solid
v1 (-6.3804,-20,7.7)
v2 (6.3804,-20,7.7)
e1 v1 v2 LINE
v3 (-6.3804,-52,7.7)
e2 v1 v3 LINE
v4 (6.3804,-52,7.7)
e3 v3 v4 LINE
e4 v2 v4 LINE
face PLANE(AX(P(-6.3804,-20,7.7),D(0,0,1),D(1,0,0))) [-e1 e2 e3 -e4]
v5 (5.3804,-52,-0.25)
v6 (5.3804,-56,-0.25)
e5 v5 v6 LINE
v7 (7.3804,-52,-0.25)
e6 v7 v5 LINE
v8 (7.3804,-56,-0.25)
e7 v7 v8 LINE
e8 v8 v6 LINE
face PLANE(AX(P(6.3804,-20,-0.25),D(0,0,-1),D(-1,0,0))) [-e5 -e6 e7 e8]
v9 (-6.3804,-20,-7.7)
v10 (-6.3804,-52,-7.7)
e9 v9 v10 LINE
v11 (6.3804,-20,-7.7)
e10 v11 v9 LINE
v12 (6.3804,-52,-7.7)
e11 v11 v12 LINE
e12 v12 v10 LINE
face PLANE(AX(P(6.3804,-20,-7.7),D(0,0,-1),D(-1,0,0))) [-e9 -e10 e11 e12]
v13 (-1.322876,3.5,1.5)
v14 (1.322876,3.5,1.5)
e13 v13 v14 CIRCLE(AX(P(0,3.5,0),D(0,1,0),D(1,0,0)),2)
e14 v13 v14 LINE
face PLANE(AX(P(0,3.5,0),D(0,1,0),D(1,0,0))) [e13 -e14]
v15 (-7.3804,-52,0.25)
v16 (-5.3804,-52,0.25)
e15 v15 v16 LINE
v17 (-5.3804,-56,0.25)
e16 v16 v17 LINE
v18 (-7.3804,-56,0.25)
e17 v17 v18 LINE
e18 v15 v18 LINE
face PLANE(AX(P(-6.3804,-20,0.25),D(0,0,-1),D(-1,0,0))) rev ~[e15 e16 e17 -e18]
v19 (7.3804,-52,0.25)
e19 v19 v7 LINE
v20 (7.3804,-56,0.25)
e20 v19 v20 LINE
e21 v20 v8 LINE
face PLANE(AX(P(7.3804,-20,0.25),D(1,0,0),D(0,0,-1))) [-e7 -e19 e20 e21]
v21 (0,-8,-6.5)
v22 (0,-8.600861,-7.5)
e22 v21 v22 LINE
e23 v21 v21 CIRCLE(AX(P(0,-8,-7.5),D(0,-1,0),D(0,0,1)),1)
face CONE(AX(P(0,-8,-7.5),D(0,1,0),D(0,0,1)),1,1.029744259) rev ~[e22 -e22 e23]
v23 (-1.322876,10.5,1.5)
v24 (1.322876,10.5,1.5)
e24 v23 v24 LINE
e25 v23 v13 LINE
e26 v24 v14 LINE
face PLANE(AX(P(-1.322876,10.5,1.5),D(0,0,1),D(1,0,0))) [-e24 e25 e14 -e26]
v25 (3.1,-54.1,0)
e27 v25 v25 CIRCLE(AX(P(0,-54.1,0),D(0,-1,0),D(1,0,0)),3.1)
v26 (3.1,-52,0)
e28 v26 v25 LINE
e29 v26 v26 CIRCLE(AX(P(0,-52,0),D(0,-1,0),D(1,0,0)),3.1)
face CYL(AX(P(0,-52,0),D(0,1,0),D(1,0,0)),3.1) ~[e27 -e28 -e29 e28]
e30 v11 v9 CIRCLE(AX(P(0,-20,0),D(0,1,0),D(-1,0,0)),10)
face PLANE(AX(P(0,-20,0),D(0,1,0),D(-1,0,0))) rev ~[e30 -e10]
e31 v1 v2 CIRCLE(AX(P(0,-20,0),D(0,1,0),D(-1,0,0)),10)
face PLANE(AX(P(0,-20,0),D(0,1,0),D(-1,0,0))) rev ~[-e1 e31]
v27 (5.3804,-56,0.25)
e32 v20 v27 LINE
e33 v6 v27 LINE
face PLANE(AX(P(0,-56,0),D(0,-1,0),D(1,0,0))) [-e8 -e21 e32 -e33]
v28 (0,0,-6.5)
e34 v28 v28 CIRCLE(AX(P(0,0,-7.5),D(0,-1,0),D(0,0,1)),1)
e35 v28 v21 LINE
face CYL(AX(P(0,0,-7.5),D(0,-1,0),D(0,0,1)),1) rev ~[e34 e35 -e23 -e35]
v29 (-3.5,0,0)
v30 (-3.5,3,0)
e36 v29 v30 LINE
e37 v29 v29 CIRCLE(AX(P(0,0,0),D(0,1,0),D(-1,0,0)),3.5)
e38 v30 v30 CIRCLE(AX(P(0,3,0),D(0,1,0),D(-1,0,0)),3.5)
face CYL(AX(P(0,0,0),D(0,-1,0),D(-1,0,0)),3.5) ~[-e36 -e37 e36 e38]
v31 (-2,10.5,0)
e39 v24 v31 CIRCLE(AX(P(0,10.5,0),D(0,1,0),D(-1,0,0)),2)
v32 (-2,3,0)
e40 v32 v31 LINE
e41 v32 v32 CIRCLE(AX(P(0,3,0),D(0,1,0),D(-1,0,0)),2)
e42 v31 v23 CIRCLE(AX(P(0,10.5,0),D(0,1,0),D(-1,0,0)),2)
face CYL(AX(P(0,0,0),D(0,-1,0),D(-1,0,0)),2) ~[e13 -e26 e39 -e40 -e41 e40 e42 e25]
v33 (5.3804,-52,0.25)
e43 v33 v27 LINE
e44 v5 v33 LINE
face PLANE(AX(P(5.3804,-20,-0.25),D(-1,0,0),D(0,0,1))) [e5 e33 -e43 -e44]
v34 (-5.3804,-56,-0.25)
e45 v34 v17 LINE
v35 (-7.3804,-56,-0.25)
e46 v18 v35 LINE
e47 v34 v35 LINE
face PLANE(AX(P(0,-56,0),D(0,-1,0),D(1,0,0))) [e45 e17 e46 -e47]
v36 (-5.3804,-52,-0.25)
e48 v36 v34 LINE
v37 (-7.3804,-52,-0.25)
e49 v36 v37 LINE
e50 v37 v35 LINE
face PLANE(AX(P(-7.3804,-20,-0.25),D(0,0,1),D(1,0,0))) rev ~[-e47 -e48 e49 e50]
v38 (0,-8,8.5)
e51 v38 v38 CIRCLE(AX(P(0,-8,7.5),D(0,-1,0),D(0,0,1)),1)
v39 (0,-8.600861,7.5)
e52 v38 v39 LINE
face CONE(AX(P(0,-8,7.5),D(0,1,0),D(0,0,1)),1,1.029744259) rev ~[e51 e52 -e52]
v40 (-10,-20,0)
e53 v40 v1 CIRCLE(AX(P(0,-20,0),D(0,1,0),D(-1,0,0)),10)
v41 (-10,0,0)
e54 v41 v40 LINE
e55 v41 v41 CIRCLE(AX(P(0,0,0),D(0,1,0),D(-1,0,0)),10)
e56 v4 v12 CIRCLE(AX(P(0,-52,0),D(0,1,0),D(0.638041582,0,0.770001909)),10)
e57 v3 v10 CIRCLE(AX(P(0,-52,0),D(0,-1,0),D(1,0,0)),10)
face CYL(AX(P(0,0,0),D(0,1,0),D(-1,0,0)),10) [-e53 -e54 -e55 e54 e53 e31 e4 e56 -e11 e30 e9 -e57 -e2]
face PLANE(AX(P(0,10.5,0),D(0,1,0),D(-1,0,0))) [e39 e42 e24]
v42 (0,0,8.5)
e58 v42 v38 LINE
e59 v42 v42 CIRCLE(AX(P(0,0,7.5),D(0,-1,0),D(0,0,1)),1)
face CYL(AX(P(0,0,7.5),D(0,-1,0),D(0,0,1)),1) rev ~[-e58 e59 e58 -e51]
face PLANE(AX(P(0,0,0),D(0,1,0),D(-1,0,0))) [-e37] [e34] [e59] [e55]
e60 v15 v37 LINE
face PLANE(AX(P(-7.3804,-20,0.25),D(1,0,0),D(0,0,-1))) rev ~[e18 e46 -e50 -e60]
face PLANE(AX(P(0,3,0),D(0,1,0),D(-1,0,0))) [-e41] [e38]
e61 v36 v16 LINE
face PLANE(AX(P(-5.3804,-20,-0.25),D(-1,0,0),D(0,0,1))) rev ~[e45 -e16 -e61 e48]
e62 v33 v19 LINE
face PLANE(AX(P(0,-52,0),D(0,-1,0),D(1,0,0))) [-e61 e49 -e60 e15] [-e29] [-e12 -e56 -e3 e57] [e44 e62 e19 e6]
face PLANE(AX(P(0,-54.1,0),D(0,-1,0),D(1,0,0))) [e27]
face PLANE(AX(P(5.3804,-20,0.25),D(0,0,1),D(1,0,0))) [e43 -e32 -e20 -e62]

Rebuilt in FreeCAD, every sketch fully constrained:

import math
import FreeCAD as App
import Part
import Sketcher
from FreeCAD import Vector


def add_polygon(sketch, points):
    """Adds a closed chain of lines whose ends are joined by coincident constraints."""
    first, n = sketch.GeometryCount, len(points)
    for a, b in zip(points, points[1:] + points[:1]):
        sketch.addGeometry(Part.LineSegment(App.Vector(*a, 0), App.Vector(*b, 0)), False)
    for i in range(n):
        sketch.addConstraint(Sketcher.Constraint("Coincident", first + i, 2, first + (i + 1) % n, 1))

doc = App.newDocument("Part")
params = doc.addObject("Spreadsheet::Sheet", "Params")
for row, (alias, value) in enumerate([
    ("sketch1_diameter", "20 mm"),
    ("pad1_length", "20 mm"),
    ("sketch2_diameter", "7 mm"),
    ("sketch2_diameter2", "4 mm"),
    ("pad2_length", "3 mm"),
    ("sketch3_diameter", "4 mm"),
    ("pad3_length", "10.5 mm"),
    ("sketch4_radius", "2 mm"),
    ("pocket1_length", "7 mm"),
    ("sketch5_width", "2 mm"),
    ("sketch5_height", "0.5 mm"),
    ("pad4_length", "36 mm"),
    ("sketch6_width", "2 mm"),
    ("sketch6_height", "0.5 mm"),
    ("sketch6_radius", "10 mm"),
    ("pad5_length", "32 mm"),
    ("sketch7_diameter", "6.2 mm"),
    ("pad6_length", "2.1 mm"),
    ("sketch8_diameter", "2 mm"),
    ("hole_diameter", "2 mm"),
    ("hole_depth", "8 mm"),
    ("sketch9_diameter", "2 mm"),
    ("hole2_diameter", "2 mm"),
    ("hole2_depth", "8 mm"),
], start=1):
    params.set(f"A{row}", alias)
    params.set(f"B{row}", "=" + value)
    params.setAlias(f"B{row}", alias)

body = doc.addObject("PartDesign::Body", "Body")

# Sketch on XZ plane
sketch1 = body.newObject("Sketcher::SketchObject", "Sketch")
sketch1.AttachmentSupport = (doc.getObject("XZ_Plane"), [""])
sketch1.MapMode = "FlatFace"
sketch1.addGeometry(Part.Circle(Vector(0, 0, 0), Vector(0, 0, 1), 10), False)
sketch1.addConstraint([
    Sketcher.Constraint("Coincident", 0, 3, -1, 1),
    Sketcher.Constraint("Diameter", 0, 20.0),
])
sketch1.setExpression("Constraints[1]", "Params.sketch1_diameter")
pad1 = body.newObject("PartDesign::Pad", "Pad")
pad1.Profile = sketch1
pad1.setExpression("Length", "Params.pad1_length")

# Sketch on XZ plane
sketch2 = body.newObject("Sketcher::SketchObject", "Sketch001")
sketch2.AttachmentSupport = (doc.getObject("XZ_Plane"), [""])
sketch2.MapMode = "FlatFace"
sketch2.addGeometry([
    Part.Circle(Vector(0, 0, 0), Vector(0, 0, 1), 3.5),
    Part.Circle(Vector(0, 0, 0), Vector(0, 0, 1), 2),
], False)
sketch2.addConstraint([
    Sketcher.Constraint("Coincident", 0, 3, -1, 1),
    Sketcher.Constraint("Coincident", 1, 3, -1, 1),
    Sketcher.Constraint("Diameter", 0, 7.0),
    Sketcher.Constraint("Diameter", 1, 4.0),
])
sketch2.setExpression("Constraints[2]", "Params.sketch2_diameter")
sketch2.setExpression("Constraints[3]", "Params.sketch2_diameter2")
pad2 = body.newObject("PartDesign::Pad", "Pad001")
pad2.Profile = sketch2
pad2.setExpression("Length", "Params.pad2_length")
pad2.Reversed = True

# Sketch on XZ plane
sketch3 = body.newObject("Sketcher::SketchObject", "Sketch002")
sketch3.AttachmentSupport = (doc.getObject("XZ_Plane"), [""])
sketch3.MapMode = "FlatFace"
sketch3.addGeometry(Part.Circle(Vector(0, 0, 0), Vector(0, 0, 1), 2), False)
sketch3.addConstraint([
    Sketcher.Constraint("Coincident", 0, 3, -1, 1),
    Sketcher.Constraint("Diameter", 0, 4.0),
])
sketch3.setExpression("Constraints[1]", "Params.sketch3_diameter")
pad3 = body.newObject("PartDesign::Pad", "Pad002")
pad3.Profile = sketch3
pad3.setExpression("Length", "Params.pad3_length")
pad3.Reversed = True

# Sketch on XZ plane
sketch4 = body.newObject("Sketcher::SketchObject", "Sketch003")
sketch4.AttachmentSupport = (doc.getObject("XZ_Plane"), [""])
sketch4.MapMode = "FlatFace"
sketch4.AttachmentOffset = App.Placement(Vector(0, 0, -10.5), App.Rotation())
sketch4.addGeometry([
    Part.LineSegment(Vector(1.3, 1.5, 0), Vector(-1.3, 1.5, 0)),
    Part.ArcOfCircle(Part.Circle(Vector(0, 0, 0), Vector(0, 0, 1), 2), math.radians(49), math.radians(131)),
], False)
sketch4.addConstraint([
    Sketcher.Constraint("Coincident", 0, 1, 1, 1),
    Sketcher.Constraint("Coincident", 1, 2, 0, 2),
    Sketcher.Constraint("Horizontal", 0),
    Sketcher.Constraint("Coincident", 1, 3, -1, 1),
    Sketcher.Constraint("Radius", 1, 2.0),
    Sketcher.Constraint("DistanceY", -1, 1, 0, 1, 1.5),
])
sketch4.setExpression("Constraints[4]", "Params.sketch4_radius")
pocket1 = body.newObject("PartDesign::Pocket", "Pocket")
pocket1.Profile = sketch4
pocket1.setExpression("Length", "Params.pocket1_length")
pocket1.Reversed = True

# Sketch on XZ plane
sketch5 = body.newObject("Sketcher::SketchObject", "Sketch004")
sketch5.AttachmentSupport = (doc.getObject("XZ_Plane"), [""])
sketch5.MapMode = "FlatFace"
sketch5.AttachmentOffset = App.Placement(Vector(0, 0, 20), App.Rotation())
add_polygon(sketch5, [(5.4, -0.2), (7.4, -0.2), (7.4, 0.2), (5.4, 0.2)])  # lines 0-3
add_polygon(sketch5, [(-7.4, -0.2), (-5.4, -0.2), (-5.4, 0.2), (-7.4, 0.2)])  # lines 4-7
sketch5.addConstraint([
    Sketcher.Constraint("Horizontal", 0),
    Sketcher.Constraint("Vertical", 1),
    Sketcher.Constraint("Horizontal", 2),
    Sketcher.Constraint("Vertical", 3),
    Sketcher.Constraint("Horizontal", 4),
    Sketcher.Constraint("Vertical", 5),
    Sketcher.Constraint("Horizontal", 6),
    Sketcher.Constraint("Vertical", 7),
    Sketcher.Constraint("Symmetric", 2, 2, 4, 2, -1, 1),
    Sketcher.Constraint("Symmetric", 0, 2, 6, 2, -1, 1),
    Sketcher.Constraint("Horizontal", 3, 2, 4, 2),
    Sketcher.Constraint("DistanceX", 0, 1, 0, 2, 2.0),
    Sketcher.Constraint("DistanceY", 1, 1, 1, 2, 0.5),
    Sketcher.Constraint("DistanceX", -1, 1, 0, 2, 7.3804),
])
sketch5.setExpression("Constraints[19]", "Params.sketch5_width")
sketch5.setExpression("Constraints[20]", "Params.sketch5_height")
pad4 = body.newObject("PartDesign::Pad", "Pad003")
pad4.Profile = sketch5
pad4.setExpression("Length", "Params.pad4_length")

# Sketch on XZ plane
sketch6 = body.newObject("Sketcher::SketchObject", "Sketch005")
sketch6.AttachmentSupport = (doc.getObject("XZ_Plane"), [""])
sketch6.MapMode = "FlatFace"
sketch6.AttachmentOffset = App.Placement(Vector(0, 0, 20), App.Rotation())
sketch6.addGeometry(Part.LineSegment(Vector(-6.4, -7.7, 0), Vector(6.4, -7.7, 0)), False)  # 0
sketch6.addGeometry(Part.ArcOfCircle(Part.Circle(Vector(0, 0, 0), Vector(0, 0, 1), 10), math.radians(-50), math.radians(50)), False)  # 1
sketch6.addGeometry(Part.LineSegment(Vector(6.4, 7.7, 0), Vector(-6.4, 7.7, 0)), False)  # 2
sketch6.addGeometry(Part.ArcOfCircle(Part.Circle(Vector(0, 0, 0), Vector(0, 0, 1), 10), math.radians(130), math.radians(230)), False)  # 3
add_polygon(sketch6, [(-5.4, -0.2), (-7.4, -0.2), (-7.4, 0.2), (-5.4, 0.2)])  # lines 4-7
add_polygon(sketch6, [(5.4, 0.2), (7.4, 0.2), (7.4, -0.2), (5.4, -0.2)])  # lines 8-11
sketch6.addConstraint([
    Sketcher.Constraint("Coincident", 0, 2, 1, 1),
    Sketcher.Constraint("Coincident", 1, 2, 2, 1),
    Sketcher.Constraint("Coincident", 2, 2, 3, 1),
    Sketcher.Constraint("Coincident", 3, 2, 0, 1),
    Sketcher.Constraint("Horizontal", 0),
    Sketcher.Constraint("Horizontal", 2),
    Sketcher.Constraint("Horizontal", 4),
    Sketcher.Constraint("Vertical", 5),
    Sketcher.Constraint("Horizontal", 6),
    Sketcher.Constraint("Vertical", 7),
    Sketcher.Constraint("Horizontal", 8),
    Sketcher.Constraint("Vertical", 9),
    Sketcher.Constraint("Horizontal", 10),
    Sketcher.Constraint("Vertical", 11),
    Sketcher.Constraint("Coincident", 1, 3, -1, 1),
    Sketcher.Constraint("Coincident", 3, 3, -1, 1),
    Sketcher.Constraint("Equal", 1, 3),
    Sketcher.Constraint("Symmetric", 4, 2, 8, 2, -1, 1),
    Sketcher.Constraint("Symmetric", 6, 2, 10, 2, -1, 1),
    Sketcher.Constraint("Horizontal", 6, 2, 8, 2),
    Sketcher.Constraint("Vertical", 0, 2, 1, 2),
    Sketcher.Constraint("DistanceX", 4, 2, 4, 1, 2.0),
    Sketcher.Constraint("DistanceY", 5, 1, 5, 2, 0.5),
    Sketcher.Constraint("Radius", 1, 10.0),
    Sketcher.Constraint("DistanceY", 0, 2, 1, 2, 15.4),
    Sketcher.Constraint("DistanceX", 4, 2, 3, 2, 1.0),
])
sketch6.setExpression("Constraints[29]", "Params.sketch6_width")
sketch6.setExpression("Constraints[30]", "Params.sketch6_height")
sketch6.setExpression("Constraints[31]", "Params.sketch6_radius")
pad5 = body.newObject("PartDesign::Pad", "Pad004")
pad5.Profile = sketch6
pad5.setExpression("Length", "Params.pad5_length")

# Sketch on XZ plane
sketch7 = body.newObject("Sketcher::SketchObject", "Sketch006")
sketch7.AttachmentSupport = (doc.getObject("XZ_Plane"), [""])
sketch7.MapMode = "FlatFace"
sketch7.AttachmentOffset = App.Placement(Vector(0, 0, 52), App.Rotation())
sketch7.addGeometry(Part.Circle(Vector(0, 0, 0), Vector(0, 0, 1), 3.1), False)
sketch7.addConstraint([
    Sketcher.Constraint("Coincident", 0, 3, -1, 1),
    Sketcher.Constraint("Diameter", 0, 6.2),
])
sketch7.setExpression("Constraints[1]", "Params.sketch7_diameter")
pad6 = body.newObject("PartDesign::Pad", "Pad005")
pad6.Profile = sketch7
pad6.setExpression("Length", "Params.pad6_length")

# Sketch on XZ plane
sketch8 = body.newObject("Sketcher::SketchObject", "Sketch007")
sketch8.AttachmentSupport = (doc.getObject("XZ_Plane"), [""])
sketch8.MapMode = "FlatFace"
sketch8.addGeometry(Part.Circle(Vector(0, 7.5, 0), Vector(0, 0, 1), 1), False)
sketch8.addConstraint([
    Sketcher.Constraint("PointOnObject", 0, 3, -2),
    Sketcher.Constraint("Diameter", 0, 2.0),
    Sketcher.Constraint("DistanceY", -1, 1, 0, 3, 7.5),
])
sketch8.setExpression("Constraints[1]", "Params.sketch8_diameter")
doc.recompute()
hole = body.newObject("PartDesign::Hole", "Hole")
hole.Profile = sketch8
hole.ThreadType = "None"
hole.setExpression("Diameter", "Params.hole_diameter")
hole.DepthType = "Dimension"
hole.setExpression("Depth", "Params.hole_depth")
hole.DrillPoint = "Angled"
hole.DrillPointAngle = 118
hole.Reversed = True

# Sketch on XZ plane
sketch9 = body.newObject("Sketcher::SketchObject", "Sketch008")
sketch9.AttachmentSupport = (doc.getObject("XZ_Plane"), [""])
sketch9.MapMode = "FlatFace"
sketch9.addGeometry(Part.Circle(Vector(0, -7.5, 0), Vector(0, 0, 1), 1), False)
sketch9.addConstraint([
    Sketcher.Constraint("PointOnObject", 0, 3, -2),
    Sketcher.Constraint("Diameter", 0, 2.0),
    Sketcher.Constraint("DistanceY", 0, 3, -1, 1, 7.5),
])
sketch9.setExpression("Constraints[1]", "Params.sketch9_diameter")
doc.recompute()
hole2 = body.newObject("PartDesign::Hole", "Hole001")
hole2.Profile = sketch9
hole2.ThreadType = "None"
hole2.setExpression("Diameter", "Params.hole2_diameter")
hole2.DepthType = "Dimension"
hole2.setExpression("Depth", "Params.hole2_depth")
hole2.DrillPoint = "Angled"
hole2.DrillPointAngle = 118
hole2.Reversed = True

doc.recompute()
